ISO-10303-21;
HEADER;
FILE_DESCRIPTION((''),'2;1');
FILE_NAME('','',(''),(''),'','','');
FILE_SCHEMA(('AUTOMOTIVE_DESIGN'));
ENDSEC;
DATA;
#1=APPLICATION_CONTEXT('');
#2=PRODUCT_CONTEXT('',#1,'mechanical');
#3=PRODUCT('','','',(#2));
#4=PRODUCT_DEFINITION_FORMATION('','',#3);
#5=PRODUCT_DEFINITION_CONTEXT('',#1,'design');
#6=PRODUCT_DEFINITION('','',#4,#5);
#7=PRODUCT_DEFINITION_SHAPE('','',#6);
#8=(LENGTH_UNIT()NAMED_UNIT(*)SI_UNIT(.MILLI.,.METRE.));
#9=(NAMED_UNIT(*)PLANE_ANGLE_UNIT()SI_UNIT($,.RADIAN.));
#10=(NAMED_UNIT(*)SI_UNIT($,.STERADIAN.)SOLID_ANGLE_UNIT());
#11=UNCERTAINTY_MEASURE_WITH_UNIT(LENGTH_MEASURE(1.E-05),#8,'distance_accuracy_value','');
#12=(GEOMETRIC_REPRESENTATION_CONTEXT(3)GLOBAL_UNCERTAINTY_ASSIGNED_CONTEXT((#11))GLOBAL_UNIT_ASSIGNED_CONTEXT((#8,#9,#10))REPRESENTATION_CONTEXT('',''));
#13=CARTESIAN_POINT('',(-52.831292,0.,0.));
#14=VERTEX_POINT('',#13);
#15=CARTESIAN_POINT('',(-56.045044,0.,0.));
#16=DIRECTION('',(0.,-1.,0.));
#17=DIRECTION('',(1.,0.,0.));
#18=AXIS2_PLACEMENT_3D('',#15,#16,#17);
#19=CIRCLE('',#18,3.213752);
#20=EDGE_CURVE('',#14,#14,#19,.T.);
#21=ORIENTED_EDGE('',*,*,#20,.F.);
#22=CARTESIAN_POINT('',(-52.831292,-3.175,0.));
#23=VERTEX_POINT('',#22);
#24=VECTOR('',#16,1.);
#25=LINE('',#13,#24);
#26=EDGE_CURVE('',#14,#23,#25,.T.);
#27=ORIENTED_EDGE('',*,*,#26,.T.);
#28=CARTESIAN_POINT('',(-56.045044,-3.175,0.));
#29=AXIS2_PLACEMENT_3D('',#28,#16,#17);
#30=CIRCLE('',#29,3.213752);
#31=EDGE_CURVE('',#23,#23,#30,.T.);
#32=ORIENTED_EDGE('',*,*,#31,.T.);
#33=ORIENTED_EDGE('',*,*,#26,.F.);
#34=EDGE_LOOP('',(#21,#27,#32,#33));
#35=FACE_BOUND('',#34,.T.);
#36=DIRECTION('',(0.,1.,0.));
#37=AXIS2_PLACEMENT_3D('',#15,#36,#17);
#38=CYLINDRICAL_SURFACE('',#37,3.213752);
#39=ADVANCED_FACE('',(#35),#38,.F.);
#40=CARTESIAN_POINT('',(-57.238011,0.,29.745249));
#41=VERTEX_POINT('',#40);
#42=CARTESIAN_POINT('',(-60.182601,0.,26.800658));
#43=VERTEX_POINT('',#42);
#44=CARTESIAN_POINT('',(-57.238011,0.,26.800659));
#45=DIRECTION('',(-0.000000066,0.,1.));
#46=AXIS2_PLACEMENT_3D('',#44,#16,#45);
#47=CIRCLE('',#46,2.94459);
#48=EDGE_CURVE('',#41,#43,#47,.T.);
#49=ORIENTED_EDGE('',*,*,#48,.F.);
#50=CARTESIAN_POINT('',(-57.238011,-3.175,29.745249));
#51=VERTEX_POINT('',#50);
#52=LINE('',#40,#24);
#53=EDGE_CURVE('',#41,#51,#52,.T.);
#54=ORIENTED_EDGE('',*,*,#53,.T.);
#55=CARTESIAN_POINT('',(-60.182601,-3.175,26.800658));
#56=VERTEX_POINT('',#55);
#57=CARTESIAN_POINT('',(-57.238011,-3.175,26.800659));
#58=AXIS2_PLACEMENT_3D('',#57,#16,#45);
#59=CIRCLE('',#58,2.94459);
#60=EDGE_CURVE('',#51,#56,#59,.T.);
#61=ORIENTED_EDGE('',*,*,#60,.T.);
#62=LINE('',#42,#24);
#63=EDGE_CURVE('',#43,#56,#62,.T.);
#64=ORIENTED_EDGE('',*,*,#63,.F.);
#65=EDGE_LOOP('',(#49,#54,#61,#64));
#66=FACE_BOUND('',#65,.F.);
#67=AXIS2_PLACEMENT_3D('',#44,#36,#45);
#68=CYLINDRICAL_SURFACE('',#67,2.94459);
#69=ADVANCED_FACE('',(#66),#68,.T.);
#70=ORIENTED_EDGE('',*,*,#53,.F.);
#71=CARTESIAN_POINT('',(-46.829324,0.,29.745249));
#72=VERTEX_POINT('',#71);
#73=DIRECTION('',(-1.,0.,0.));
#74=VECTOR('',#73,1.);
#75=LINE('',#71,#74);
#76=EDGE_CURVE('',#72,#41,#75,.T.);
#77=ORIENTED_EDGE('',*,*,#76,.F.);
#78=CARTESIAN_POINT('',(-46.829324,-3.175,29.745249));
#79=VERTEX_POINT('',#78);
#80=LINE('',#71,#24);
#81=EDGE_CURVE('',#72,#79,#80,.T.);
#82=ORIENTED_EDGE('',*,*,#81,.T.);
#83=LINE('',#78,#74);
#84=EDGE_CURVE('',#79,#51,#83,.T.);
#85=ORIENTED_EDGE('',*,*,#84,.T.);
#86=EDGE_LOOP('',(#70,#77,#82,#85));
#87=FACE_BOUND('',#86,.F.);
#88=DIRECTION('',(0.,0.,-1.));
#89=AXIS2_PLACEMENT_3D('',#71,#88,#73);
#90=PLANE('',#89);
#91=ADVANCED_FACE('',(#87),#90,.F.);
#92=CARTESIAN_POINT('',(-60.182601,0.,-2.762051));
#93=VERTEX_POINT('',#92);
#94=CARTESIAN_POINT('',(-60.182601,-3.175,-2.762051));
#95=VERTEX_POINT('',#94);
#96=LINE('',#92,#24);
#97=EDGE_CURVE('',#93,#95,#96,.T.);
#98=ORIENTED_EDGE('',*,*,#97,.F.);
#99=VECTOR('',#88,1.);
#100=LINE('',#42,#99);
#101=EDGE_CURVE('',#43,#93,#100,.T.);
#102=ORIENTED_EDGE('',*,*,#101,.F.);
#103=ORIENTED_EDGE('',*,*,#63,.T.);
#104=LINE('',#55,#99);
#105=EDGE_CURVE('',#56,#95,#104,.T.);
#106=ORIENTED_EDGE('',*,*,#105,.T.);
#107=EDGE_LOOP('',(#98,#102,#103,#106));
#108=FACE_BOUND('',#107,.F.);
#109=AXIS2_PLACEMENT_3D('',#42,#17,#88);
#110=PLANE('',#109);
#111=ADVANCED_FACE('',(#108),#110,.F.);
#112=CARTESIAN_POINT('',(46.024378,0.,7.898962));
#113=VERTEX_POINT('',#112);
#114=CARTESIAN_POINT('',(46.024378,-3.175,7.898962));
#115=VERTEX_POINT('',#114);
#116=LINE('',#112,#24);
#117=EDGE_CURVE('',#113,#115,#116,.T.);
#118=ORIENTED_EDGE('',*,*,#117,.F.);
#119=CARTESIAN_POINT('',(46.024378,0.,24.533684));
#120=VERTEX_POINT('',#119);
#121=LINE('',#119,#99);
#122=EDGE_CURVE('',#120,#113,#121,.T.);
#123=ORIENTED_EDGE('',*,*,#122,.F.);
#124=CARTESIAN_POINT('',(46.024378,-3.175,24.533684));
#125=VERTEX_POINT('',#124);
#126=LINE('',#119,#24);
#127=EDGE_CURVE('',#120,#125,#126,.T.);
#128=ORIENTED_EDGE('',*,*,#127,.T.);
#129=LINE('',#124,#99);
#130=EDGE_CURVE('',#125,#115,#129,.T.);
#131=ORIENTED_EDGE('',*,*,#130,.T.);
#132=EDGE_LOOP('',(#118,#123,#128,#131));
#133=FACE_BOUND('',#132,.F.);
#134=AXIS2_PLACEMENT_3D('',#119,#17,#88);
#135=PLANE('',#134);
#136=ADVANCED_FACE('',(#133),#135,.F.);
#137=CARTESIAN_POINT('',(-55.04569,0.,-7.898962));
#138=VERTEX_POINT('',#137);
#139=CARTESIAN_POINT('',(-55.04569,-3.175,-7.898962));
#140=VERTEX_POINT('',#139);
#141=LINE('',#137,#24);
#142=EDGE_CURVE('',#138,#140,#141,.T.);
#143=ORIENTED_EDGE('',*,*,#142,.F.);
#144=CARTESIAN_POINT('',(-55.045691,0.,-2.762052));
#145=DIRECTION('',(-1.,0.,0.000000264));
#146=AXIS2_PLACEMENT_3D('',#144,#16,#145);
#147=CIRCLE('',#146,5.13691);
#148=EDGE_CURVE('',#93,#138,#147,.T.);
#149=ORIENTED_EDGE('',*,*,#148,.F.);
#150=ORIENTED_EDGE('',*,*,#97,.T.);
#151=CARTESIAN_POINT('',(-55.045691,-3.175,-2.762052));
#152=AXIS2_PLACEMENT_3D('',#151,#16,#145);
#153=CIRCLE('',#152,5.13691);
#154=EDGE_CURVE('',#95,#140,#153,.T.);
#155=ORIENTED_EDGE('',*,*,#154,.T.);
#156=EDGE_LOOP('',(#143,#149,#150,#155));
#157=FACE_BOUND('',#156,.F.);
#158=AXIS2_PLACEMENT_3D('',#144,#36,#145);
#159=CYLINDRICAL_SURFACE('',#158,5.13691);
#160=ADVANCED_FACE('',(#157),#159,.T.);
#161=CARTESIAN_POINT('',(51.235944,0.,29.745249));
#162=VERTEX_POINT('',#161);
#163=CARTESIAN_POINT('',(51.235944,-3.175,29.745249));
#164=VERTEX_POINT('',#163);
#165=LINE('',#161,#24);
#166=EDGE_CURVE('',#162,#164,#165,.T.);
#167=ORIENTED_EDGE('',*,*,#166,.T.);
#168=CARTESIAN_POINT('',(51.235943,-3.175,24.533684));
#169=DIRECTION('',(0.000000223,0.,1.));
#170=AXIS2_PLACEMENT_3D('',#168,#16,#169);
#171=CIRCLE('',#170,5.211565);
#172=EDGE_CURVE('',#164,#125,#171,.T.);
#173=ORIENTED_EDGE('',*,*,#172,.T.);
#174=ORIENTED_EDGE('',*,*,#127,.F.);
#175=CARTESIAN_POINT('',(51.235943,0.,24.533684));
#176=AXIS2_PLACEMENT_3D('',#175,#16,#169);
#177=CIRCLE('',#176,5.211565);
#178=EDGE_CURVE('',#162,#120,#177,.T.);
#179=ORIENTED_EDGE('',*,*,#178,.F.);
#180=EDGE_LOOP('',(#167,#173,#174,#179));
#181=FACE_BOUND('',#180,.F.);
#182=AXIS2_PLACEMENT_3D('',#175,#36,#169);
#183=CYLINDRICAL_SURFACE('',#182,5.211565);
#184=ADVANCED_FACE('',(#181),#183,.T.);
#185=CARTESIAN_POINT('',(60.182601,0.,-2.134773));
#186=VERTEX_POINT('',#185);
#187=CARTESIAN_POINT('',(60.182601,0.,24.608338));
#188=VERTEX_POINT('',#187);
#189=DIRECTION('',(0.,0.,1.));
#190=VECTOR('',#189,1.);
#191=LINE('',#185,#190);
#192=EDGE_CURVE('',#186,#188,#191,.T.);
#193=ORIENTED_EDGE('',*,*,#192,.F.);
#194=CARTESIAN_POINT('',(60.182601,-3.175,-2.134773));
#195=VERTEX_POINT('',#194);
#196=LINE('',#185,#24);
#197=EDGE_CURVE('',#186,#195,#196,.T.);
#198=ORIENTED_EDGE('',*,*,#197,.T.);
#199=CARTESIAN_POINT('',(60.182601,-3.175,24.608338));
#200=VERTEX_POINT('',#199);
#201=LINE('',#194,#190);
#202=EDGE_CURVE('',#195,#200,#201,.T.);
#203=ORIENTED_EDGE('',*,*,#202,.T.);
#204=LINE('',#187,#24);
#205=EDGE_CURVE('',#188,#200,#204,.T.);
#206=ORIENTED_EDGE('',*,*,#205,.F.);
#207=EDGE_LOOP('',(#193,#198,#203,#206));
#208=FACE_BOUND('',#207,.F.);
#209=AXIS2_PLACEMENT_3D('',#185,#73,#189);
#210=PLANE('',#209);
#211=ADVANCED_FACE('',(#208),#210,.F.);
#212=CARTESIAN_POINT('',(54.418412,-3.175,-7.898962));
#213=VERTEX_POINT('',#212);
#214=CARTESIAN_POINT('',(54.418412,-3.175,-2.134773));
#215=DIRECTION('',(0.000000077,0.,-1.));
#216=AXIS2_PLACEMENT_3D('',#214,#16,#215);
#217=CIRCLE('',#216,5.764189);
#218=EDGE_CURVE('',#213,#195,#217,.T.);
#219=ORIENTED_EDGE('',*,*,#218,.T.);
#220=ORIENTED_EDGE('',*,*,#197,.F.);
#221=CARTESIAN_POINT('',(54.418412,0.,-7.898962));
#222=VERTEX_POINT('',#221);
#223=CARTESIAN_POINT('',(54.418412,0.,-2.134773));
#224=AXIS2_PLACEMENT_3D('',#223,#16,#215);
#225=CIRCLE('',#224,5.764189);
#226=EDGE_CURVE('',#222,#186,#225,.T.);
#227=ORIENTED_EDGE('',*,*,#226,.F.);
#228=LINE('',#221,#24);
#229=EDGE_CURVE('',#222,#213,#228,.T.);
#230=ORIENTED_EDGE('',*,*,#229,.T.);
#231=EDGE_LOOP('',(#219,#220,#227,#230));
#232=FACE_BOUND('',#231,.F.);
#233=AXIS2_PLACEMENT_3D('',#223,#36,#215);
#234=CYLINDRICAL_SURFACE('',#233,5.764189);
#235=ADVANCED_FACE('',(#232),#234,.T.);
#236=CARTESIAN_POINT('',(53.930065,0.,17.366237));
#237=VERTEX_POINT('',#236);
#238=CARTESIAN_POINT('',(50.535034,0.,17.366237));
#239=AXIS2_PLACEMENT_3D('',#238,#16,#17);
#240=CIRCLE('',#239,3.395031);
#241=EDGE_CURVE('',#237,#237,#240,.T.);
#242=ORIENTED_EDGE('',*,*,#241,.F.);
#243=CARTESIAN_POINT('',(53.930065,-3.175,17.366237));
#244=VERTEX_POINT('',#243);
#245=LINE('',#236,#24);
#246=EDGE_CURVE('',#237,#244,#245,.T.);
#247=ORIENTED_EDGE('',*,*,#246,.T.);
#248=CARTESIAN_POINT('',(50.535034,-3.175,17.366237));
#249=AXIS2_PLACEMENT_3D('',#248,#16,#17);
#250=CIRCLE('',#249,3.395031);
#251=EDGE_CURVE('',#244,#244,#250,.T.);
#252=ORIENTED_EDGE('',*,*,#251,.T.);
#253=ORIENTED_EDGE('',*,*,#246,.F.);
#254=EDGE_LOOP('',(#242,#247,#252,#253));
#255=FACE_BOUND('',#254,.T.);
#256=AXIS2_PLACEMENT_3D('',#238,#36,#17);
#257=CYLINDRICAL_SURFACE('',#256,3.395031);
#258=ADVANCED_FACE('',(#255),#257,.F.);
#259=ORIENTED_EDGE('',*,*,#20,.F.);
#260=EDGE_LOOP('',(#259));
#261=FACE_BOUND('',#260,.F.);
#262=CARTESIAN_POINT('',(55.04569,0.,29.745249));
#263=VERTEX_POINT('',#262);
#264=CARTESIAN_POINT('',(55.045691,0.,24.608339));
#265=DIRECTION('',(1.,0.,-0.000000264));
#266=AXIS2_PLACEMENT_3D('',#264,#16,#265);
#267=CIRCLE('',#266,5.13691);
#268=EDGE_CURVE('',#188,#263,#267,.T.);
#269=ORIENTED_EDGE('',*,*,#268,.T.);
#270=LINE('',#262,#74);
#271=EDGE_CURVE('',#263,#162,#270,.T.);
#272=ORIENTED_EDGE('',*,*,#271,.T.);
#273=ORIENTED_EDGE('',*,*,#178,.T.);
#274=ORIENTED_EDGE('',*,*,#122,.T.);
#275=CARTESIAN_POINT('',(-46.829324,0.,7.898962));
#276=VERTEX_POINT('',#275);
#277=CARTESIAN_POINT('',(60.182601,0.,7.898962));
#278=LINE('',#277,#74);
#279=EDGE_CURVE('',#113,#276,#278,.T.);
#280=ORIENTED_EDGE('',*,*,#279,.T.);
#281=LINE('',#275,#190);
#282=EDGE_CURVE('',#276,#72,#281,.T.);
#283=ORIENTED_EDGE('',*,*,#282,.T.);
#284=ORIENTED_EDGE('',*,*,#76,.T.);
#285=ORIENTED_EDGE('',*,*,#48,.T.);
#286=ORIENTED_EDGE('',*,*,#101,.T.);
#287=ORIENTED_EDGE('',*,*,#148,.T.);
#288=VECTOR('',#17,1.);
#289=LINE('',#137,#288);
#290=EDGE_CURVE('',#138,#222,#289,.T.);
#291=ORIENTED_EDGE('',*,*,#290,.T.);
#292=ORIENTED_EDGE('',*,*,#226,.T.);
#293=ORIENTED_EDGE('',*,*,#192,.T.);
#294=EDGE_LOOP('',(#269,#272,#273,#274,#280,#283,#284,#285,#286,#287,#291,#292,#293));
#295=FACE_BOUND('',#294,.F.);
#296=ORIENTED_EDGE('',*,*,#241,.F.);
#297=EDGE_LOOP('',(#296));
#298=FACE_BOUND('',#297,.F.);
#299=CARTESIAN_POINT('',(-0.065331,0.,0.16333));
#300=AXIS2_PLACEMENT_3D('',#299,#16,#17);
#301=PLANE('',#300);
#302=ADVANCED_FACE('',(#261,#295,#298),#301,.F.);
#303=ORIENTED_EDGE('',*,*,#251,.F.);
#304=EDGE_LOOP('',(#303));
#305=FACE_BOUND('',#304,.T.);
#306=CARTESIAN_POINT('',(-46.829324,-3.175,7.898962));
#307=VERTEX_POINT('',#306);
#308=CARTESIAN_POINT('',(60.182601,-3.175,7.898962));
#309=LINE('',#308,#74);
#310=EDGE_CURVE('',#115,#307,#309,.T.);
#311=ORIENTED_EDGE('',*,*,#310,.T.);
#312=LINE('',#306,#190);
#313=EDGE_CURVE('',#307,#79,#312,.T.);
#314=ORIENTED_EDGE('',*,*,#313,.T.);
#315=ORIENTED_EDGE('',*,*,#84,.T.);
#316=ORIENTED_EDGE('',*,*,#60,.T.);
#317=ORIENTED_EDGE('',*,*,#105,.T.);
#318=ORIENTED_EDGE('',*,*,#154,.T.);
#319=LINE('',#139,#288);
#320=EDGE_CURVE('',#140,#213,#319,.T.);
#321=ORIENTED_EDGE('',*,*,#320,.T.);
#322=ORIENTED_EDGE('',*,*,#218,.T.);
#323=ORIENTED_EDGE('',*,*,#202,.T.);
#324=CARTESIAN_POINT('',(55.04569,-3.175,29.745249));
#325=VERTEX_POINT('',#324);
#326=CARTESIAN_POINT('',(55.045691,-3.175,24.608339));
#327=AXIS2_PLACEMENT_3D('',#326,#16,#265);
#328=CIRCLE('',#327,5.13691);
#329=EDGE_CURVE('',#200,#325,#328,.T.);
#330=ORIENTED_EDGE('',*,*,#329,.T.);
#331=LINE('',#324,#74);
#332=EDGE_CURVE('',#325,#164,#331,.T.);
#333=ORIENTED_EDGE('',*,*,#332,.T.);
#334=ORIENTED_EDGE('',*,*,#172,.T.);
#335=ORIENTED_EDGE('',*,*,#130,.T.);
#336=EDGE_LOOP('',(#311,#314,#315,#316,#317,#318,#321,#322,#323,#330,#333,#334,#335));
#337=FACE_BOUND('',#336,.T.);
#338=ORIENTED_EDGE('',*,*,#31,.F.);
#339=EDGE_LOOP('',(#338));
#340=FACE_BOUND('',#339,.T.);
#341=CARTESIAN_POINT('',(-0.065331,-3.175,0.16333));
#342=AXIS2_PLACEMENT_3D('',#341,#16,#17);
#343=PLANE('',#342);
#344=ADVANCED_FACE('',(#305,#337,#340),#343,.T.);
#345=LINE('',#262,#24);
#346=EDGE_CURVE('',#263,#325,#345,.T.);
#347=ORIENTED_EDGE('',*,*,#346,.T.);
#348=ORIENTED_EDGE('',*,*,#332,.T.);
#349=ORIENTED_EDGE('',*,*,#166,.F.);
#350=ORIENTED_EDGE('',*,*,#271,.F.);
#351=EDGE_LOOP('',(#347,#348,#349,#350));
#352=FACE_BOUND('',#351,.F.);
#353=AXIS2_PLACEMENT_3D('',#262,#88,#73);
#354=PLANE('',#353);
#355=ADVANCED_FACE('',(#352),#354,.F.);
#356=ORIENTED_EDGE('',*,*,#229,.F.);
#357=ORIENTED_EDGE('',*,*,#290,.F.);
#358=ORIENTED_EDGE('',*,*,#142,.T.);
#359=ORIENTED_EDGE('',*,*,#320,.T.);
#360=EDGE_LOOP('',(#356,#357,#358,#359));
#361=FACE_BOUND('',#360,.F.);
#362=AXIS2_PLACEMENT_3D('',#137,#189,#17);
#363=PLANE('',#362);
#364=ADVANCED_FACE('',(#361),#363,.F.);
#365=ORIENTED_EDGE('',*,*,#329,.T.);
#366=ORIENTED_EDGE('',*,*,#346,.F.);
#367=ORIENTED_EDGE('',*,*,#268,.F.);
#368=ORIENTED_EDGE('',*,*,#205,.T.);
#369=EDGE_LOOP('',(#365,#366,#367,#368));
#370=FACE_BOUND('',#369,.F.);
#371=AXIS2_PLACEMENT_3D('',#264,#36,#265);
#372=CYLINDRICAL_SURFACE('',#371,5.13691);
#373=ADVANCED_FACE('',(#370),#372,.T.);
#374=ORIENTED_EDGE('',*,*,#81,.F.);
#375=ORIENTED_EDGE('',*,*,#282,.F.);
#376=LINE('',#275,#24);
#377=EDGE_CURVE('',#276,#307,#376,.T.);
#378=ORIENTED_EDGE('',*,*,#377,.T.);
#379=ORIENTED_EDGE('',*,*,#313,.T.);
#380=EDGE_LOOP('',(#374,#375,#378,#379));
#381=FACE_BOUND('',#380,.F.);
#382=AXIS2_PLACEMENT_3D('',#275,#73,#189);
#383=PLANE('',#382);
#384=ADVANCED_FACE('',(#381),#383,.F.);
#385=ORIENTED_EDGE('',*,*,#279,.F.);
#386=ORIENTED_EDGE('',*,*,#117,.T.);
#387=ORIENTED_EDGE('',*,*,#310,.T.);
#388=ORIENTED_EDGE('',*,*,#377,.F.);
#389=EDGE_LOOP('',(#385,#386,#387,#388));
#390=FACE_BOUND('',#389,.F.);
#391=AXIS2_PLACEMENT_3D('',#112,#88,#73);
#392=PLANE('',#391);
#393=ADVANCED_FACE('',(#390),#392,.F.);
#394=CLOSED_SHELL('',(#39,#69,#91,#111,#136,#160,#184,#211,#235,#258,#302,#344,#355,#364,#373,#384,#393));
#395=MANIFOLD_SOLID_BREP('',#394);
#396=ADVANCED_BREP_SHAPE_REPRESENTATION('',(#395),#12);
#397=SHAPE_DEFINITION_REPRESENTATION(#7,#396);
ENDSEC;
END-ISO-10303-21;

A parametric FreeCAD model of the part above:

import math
import FreeCAD as App
import Part
import Sketcher
from FreeCAD import Vector
Q = App.Units.Quantity

doc = App.newDocument("Part")
body = doc.addObject("PartDesign::Body", "Body")

sketch1 = body.newObject("Sketcher::SketchObject", "Sketch")
sketch1.AttachmentSupport = (doc.getObject("XZ_Plane"), [""])
sketch1.MapMode = "FlatFace"
sketch1.addGeometry([
    Part.ArcOfCircle(Part.Circle(Vector(-55, -2.8, 0), Vector(0, 0, 1), 5.1), math.radians(180), math.radians(270)),
    Part.LineSegment(Vector(-55, -7.9, 0), Vector(54.4, -7.9, 0)),
    Part.ArcOfCircle(Part.Circle(Vector(54.4, -2.1, 0), Vector(0, 0, 1), 5.8), math.radians(-90), math.radians(0)),
    Part.LineSegment(Vector(60.2, -2.1, 0), Vector(60.2, 24.6, 0)),
    Part.ArcOfCircle(Part.Circle(Vector(55, 24.6, 0), Vector(0, 0, 1), 5.1), math.radians(0), math.radians(90)),
    Part.LineSegment(Vector(55, 29.7, 0), Vector(51.2, 29.7, 0)),
    Part.ArcOfCircle(Part.Circle(Vector(51.2, 24.5, 0), Vector(0, 0, 1), 5.2), math.radians(90), math.radians(180)),
    Part.LineSegment(Vector(46, 24.5, 0), Vector(46, 7.9, 0)),
    Part.LineSegment(Vector(46, 7.9, 0), Vector(-46.8, 7.9, 0)),
    Part.LineSegment(Vector(-46.8, 7.9, 0), Vector(-46.8, 29.7, 0)),
    Part.LineSegment(Vector(-46.8, 29.7, 0), Vector(-57.2, 29.7, 0)),
    Part.ArcOfCircle(Part.Circle(Vector(-57.2, 26.8, 0), Vector(0, 0, 1), 2.9), math.radians(90), math.radians(180)),
    Part.LineSegment(Vector(-60.2, 26.8, 0), Vector(-60.2, -2.8, 0)),
    Part.Circle(Vector(-56, 0, 0), Vector(0, 0, 1), 3.2),
    Part.Circle(Vector(50.5, 17.4, 0), Vector(0, 0, 1), 3.4),
], False)
sketch1.addConstraint([
    Sketcher.Constraint("Tangent", 0, 2, 1, 1),
    Sketcher.Constraint("Tangent", 1, 2, 2, 1),
    Sketcher.Constraint("Tangent", 2, 2, 3, 1),
    Sketcher.Constraint("Tangent", 3, 2, 4, 1),
    Sketcher.Constraint("Tangent", 4, 2, 5, 1),
    Sketcher.Constraint("Tangent", 5, 2, 6, 1),
    Sketcher.Constraint("Tangent", 6, 2, 7, 1),
    Sketcher.Constraint("Coincident", 7, 2, 8, 1),
    Sketcher.Constraint("Coincident", 8, 2, 9, 1),
    Sketcher.Constraint("Coincident", 9, 2, 10, 1),
    Sketcher.Constraint("Tangent", 10, 2, 11, 1),
    Sketcher.Constraint("Tangent", 11, 2, 12, 1),
    Sketcher.Constraint("Tangent", 12, 2, 0, 1),
    Sketcher.Constraint("Horizontal", 1),
    Sketcher.Constraint("Vertical", 3),
    Sketcher.Constraint("Horizontal", 5),
    Sketcher.Constraint("Vertical", 7),
    Sketcher.Constraint("Horizontal", 8),
    Sketcher.Constraint("Vertical", 9),
    Sketcher.Constraint("Horizontal", 10),
    Sketcher.Constraint("Vertical", 12),
    Sketcher.Constraint("Equal", 0, 4),
    Sketcher.Constraint("PointOnObject", 13, 3, -1),
    Sketcher.Constraint("Horizontal", 5, 2, 9, 2),
    Sketcher.Constraint("Diameter", 14, Q("6.790062 mm")),
    Sketcher.Constraint("Radius", 0, Q("5.13691 mm")),
    Sketcher.Constraint("Radius", 2, Q("5.764189 mm")),
    Sketcher.Constraint("Radius", 11, Q("2.94459 mm")),
    Sketcher.Constraint("Diameter", 13, Q("6.427504 mm")),
    Sketcher.Constraint("DistanceX", 1, 1, 1, 2, Q("109.464102 mm")),
    Sketcher.Constraint("DistanceX", 8, 2, 8, 1, Q("92.853702 mm")),
    Sketcher.Constraint("Radius", 6, Q("5.211565 mm")),
    Sketcher.Constraint("DistanceY", 3, 1, 3, 2, Q("26.743111 mm")),
    Sketcher.Constraint("DistanceY", 7, 2, 7, 1, Q("16.634722 mm")),
    Sketcher.Constraint("DistanceX", -1, 1, 2, 2, Q("60.182601 mm")),
    Sketcher.Constraint("DistanceY", 0, 2, 14, 3, Q("25.265199 mm")),
    Sketcher.Constraint("DistanceX", 5, 2, 5, 1, Q("3.809746 mm")),
    Sketcher.Constraint("DistanceY", -1, 1, 4, 3, Q("24.608339 mm")),
    Sketcher.Constraint("DistanceX", 14, 3, 6, 3, Q("0.700909 mm")),
    Sketcher.Constraint("DistanceX", 13, 3, 14, 3, Q("106.580078 mm")),
])
pad1 = body.newObject("PartDesign::Pad", "Pad")
pad1.Profile = sketch1
pad1.Length = Q("0.125 in")

doc.recompute()
